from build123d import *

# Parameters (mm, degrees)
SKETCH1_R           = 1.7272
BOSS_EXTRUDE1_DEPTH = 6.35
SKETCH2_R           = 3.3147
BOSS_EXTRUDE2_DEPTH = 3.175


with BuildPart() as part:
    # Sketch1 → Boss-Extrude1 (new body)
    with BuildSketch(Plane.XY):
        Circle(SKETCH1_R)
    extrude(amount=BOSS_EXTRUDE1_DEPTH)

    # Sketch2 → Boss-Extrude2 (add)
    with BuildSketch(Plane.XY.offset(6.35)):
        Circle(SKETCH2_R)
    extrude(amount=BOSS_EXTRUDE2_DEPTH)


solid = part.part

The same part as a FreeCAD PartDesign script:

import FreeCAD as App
import Part
import Sketcher

V = App.Vector
Q = App.Units.Quantity

doc = App.newDocument("Part")
body = doc.addObject("PartDesign::Body", "Body")

sketch1 = doc.addObject("Sketcher::SketchObject", "Sketch")
body.addObject(sketch1)
sketch1.AttachmentSupport = (doc.XY_Plane, [""])
sketch1.MapMode = "FlatFace"
sketch1.addGeometry(Part.Circle(V(0, 0, 0), V(0, 0, 1), 1.7), False)
sketch1.addConstraint(Sketcher.Constraint("Coincident", 0, 3, -1, 1))
sketch1.addConstraint(Sketcher.Constraint("Diameter", 0, Q("0.136 in")))
pad1 = doc.addObject("PartDesign::Pad", "Pad")
body.addObject(pad1)
pad1.Profile = sketch1
pad1.Length = Q("0.25 in")

sketch2 = doc.addObject("Sketcher::SketchObject", "Sketch001")
body.addObject(sketch2)
sketch2.AttachmentSupport = (doc.XY_Plane, [""])
sketch2.MapMode = "FlatFace"
sketch2.AttachmentOffset = App.Placement(V(0, 0, 0.25 * 25.4), App.Rotation())
sketch2.addGeometry(Part.Circle(V(0, 0, 0), V(0, 0, 1), 3.3), False)
sketch2.addConstraint(Sketcher.Constraint("Coincident", 0, 3, -1, 1))
sketch2.addConstraint(Sketcher.Constraint("Diameter", 0, Q("0.261 in")))
pad2 = doc.addObject("PartDesign::Pad", "Pad001")
body.addObject(pad2)
pad2.Profile = sketch2
pad2.Length = Q("0.125 in")

doc.recompute()
